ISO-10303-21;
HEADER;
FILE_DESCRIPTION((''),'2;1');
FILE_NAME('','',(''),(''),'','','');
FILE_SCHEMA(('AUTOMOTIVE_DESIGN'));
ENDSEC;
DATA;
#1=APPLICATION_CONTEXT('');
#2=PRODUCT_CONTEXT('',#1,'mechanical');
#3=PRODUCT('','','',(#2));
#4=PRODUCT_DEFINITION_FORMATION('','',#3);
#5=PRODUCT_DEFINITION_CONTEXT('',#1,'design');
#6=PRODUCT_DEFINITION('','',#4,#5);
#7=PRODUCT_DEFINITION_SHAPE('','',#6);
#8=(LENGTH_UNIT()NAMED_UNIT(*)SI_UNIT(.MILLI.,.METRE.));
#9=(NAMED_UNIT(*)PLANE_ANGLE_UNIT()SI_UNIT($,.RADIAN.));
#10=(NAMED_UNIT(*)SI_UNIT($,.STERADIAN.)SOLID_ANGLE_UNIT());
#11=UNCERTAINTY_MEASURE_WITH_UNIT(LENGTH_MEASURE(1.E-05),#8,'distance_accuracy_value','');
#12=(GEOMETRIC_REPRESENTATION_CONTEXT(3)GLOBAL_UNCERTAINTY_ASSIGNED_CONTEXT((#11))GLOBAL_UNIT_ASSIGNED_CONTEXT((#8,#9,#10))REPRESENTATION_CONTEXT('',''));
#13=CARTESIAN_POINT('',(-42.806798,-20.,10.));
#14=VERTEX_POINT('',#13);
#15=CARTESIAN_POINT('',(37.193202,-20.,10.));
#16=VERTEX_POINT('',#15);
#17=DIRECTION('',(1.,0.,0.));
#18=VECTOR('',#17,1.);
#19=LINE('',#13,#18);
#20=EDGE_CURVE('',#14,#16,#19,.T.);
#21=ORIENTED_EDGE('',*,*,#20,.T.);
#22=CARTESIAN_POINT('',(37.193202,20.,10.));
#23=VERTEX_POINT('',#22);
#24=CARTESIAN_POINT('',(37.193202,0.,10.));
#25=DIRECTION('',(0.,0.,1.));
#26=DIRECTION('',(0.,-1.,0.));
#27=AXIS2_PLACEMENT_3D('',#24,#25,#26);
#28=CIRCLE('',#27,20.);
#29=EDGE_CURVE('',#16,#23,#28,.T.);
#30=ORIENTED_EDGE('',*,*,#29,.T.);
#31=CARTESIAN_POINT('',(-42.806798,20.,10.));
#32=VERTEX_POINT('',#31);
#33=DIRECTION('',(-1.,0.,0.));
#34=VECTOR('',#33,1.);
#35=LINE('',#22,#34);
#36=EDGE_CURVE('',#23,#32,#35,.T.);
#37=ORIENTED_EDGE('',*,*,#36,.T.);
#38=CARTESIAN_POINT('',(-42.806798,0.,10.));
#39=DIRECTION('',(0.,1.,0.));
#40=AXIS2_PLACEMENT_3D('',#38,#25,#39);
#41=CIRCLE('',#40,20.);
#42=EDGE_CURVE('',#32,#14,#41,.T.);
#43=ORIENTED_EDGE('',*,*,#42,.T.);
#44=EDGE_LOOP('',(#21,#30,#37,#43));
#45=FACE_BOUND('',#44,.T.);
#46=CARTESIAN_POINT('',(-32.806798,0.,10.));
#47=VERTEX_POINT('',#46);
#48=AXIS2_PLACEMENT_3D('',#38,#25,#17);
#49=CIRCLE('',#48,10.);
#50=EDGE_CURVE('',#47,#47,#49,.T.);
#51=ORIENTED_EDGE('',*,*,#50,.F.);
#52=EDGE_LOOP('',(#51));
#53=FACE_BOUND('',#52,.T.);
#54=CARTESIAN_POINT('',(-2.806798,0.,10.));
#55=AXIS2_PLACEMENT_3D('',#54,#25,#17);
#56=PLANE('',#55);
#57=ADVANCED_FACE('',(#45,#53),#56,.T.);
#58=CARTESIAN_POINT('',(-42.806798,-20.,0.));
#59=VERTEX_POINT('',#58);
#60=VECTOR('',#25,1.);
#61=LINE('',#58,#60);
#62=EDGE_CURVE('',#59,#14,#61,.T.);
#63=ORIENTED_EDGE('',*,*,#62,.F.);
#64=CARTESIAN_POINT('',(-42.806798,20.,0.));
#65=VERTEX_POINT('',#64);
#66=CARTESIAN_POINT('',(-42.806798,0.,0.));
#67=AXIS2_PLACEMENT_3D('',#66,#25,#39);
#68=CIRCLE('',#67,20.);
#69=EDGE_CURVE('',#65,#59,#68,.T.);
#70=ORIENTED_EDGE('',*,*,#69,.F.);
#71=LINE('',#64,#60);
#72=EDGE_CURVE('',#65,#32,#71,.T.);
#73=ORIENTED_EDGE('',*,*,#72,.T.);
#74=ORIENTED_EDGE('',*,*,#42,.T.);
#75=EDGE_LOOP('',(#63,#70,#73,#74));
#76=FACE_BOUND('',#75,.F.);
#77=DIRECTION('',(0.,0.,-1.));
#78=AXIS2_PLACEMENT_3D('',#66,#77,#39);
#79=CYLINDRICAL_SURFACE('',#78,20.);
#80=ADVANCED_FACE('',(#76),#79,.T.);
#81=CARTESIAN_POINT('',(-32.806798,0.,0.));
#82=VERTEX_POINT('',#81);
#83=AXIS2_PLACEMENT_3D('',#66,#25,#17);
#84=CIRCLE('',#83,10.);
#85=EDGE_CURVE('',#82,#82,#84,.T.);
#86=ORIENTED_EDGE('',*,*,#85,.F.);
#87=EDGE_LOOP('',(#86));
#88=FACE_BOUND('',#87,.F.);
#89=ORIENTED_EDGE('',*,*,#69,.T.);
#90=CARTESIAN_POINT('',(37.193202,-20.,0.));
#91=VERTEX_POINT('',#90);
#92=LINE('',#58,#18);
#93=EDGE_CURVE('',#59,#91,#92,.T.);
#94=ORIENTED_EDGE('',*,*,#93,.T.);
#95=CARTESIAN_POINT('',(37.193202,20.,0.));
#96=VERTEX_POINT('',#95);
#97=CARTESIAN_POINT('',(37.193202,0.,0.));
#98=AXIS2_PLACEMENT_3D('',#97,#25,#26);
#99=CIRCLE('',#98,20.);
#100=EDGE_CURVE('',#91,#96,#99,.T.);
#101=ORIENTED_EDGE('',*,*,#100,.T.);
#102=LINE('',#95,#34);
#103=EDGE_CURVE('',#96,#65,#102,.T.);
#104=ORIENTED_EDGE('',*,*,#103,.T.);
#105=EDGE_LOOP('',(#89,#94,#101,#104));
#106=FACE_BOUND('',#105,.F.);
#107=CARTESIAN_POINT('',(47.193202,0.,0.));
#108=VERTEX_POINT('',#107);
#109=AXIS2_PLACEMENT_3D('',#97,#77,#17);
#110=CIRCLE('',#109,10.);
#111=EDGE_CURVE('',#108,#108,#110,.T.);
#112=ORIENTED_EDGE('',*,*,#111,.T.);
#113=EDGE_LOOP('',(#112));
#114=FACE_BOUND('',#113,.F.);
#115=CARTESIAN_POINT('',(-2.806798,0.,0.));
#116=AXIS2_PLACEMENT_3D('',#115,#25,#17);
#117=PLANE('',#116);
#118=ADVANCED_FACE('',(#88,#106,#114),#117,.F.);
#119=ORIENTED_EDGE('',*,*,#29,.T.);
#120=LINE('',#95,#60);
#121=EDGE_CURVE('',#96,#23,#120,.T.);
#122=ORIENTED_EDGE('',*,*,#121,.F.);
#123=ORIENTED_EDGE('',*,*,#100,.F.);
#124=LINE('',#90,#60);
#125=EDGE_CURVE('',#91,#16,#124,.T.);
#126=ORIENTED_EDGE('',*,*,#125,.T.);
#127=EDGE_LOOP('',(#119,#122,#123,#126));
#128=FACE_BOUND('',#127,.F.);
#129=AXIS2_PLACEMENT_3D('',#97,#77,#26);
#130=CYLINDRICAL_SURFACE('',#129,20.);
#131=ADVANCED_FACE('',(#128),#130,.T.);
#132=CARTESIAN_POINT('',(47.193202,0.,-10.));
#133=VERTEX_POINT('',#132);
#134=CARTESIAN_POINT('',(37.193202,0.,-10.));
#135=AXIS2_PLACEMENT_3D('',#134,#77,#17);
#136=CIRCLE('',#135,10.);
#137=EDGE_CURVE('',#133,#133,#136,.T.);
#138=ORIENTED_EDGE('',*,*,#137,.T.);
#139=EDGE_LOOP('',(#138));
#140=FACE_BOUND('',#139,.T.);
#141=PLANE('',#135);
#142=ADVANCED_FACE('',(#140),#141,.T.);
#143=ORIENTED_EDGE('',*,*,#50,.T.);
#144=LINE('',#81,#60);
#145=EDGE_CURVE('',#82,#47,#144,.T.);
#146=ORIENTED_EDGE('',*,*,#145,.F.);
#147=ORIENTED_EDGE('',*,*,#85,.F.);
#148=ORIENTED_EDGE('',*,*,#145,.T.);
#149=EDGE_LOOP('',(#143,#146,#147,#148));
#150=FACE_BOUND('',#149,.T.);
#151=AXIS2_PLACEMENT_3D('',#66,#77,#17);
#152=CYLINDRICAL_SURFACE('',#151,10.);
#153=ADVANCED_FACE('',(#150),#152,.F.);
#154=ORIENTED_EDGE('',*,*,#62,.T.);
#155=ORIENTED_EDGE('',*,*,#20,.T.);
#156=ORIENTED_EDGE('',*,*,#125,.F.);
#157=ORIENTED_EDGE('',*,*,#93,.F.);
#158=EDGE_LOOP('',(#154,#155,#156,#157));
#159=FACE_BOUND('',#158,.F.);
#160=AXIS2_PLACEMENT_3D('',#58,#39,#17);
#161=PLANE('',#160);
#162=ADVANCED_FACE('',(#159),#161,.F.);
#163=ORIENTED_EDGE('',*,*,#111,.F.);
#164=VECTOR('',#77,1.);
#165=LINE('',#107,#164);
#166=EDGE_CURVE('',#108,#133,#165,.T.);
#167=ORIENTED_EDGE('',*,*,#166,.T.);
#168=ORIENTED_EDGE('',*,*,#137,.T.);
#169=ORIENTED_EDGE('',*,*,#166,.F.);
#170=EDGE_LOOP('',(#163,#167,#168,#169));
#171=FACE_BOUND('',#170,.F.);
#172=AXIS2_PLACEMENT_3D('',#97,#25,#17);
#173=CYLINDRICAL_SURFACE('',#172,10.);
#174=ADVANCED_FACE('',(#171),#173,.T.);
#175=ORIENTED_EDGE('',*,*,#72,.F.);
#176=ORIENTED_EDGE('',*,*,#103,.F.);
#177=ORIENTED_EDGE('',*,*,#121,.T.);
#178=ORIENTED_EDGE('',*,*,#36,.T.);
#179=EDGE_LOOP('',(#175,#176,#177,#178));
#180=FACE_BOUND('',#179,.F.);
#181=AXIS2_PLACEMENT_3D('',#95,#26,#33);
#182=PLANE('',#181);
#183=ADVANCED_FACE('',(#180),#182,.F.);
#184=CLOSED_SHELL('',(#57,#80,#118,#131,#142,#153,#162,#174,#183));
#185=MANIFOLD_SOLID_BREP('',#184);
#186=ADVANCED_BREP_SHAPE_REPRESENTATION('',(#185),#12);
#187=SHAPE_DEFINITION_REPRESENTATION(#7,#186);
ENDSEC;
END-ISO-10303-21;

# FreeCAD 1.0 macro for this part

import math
import FreeCAD as App
import Part
import Sketcher
from FreeCAD import Vector

doc = App.newDocument("Part")
body = doc.addObject("PartDesign::Body", "Body")

# Sketch on XY plane
sketch1 = body.newObject("Sketcher::SketchObject", "Sketch")
sketch1.AttachmentSupport = (doc.getObject("XY_Plane"), [""])
sketch1.MapMode = "FlatFace"
sketch1.addGeometry(Part.LineSegment(Vector(37.193202, 20, 0), Vector(-42.806798, 20, 0)), False)
sketch1.addGeometry(Part.ArcOfCircle(Part.Circle(Vector(-42.806798, 0, 0), Vector(0, 0, 1), 20), math.radians(90), math.radians(270)), False)
sketch1.addGeometry(Part.LineSegment(Vector(-42.806798, -20, 0), Vector(37.193202, -20, 0)), False)
sketch1.addGeometry(Part.ArcOfCircle(Part.Circle(Vector(37.193202, 0, 0), Vector(0, 0, 1), 20), math.radians(-90), math.radians(90)), False)
sketch1.addGeometry(Part.Circle(Vector(-42.806798, 0, 0), Vector(0, 0, 1), 10), False)
sketch1.addConstraint(Sketcher.Constraint("Tangent", 0, 2, 1, 1))
sketch1.addConstraint(Sketcher.Constraint("Tangent", 1, 2, 2, 1))
sketch1.addConstraint(Sketcher.Constraint("Tangent", 2, 2, 3, 1))
sketch1.addConstraint(Sketcher.Constraint("Tangent", 3, 2, 0, 1))
sketch1.addConstraint(Sketcher.Constraint("Horizontal", 0))
sketch1.addConstraint(Sketcher.Constraint("Horizontal", 2))
sketch1.addConstraint(Sketcher.Constraint("Coincident", 4, 3, 1, 3))
sketch1.addConstraint(Sketcher.Constraint("PointOnObject", 1, 3, -1))
sketch1.addConstraint(Sketcher.Constraint("Diameter", 4, 20.0))
sketch1.addConstraint(Sketcher.Constraint("Radius", 1, 20.0))
sketch1.addConstraint(Sketcher.Constraint("DistanceX", 0, 2, 0, 1, 80.0))
sketch1.addConstraint(Sketcher.Constraint("DistanceX", 1, 3, -1, 1, 42.806798))
pad1 = body.newObject("PartDesign::Pad", "Pad")
pad1.Profile = sketch1
pad1.Length = 10

# Sketch on XY plane
sketch2 = body.newObject("Sketcher::SketchObject", "Sketch001")
sketch2.AttachmentSupport = (doc.getObject("XY_Plane"), [""])
sketch2.MapMode = "FlatFace"
sketch2.addGeometry(Part.Circle(Vector(37.193202, 0, 0), Vector(0, 0, 1), 10), False)
sketch2.addConstraint(Sketcher.Constraint("PointOnObject", 0, 3, -1))
sketch2.addConstraint(Sketcher.Constraint("Diameter", 0, 20.0))
sketch2.addConstraint(Sketcher.Constraint("DistanceX", -1, 1, 0, 3, 37.193202))
pad2 = body.newObject("PartDesign::Pad", "Pad001")
pad2.Profile = sketch2
pad2.Length = 10
pad2.Reversed = True

doc.recompute()
